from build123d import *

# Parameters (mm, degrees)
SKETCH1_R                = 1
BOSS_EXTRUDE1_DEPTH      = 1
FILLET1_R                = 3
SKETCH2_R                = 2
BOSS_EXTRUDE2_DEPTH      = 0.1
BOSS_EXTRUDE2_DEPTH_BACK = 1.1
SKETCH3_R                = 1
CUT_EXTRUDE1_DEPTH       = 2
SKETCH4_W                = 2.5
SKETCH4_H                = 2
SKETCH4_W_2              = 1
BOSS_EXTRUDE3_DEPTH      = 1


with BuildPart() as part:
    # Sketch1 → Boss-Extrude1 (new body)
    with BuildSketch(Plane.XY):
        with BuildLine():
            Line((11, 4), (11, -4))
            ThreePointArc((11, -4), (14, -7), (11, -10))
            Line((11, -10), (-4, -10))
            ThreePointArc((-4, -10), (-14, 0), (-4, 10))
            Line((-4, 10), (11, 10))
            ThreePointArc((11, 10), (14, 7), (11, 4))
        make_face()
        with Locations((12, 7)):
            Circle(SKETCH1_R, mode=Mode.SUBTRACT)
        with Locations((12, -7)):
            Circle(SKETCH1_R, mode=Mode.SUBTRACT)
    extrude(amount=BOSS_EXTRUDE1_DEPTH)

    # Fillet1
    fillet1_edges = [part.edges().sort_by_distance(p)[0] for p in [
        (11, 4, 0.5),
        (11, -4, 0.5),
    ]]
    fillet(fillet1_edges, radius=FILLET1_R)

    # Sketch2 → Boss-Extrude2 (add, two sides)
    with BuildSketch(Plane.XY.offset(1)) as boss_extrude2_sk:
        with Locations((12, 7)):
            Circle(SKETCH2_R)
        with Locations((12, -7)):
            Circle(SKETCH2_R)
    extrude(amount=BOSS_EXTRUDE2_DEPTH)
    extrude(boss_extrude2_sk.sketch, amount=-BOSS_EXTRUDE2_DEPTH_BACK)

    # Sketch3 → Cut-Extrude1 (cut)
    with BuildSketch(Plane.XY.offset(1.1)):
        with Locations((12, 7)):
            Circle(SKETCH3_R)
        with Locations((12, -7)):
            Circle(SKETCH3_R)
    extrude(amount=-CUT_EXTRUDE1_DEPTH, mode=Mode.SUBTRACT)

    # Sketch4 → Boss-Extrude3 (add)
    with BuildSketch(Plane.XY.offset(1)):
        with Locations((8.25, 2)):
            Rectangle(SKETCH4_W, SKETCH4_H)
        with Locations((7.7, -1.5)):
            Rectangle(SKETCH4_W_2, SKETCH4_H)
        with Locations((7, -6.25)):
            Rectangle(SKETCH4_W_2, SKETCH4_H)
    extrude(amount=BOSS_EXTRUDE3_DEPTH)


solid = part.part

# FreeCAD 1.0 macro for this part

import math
import FreeCAD as App
import Part
import Sketcher
from FreeCAD import Vector


def edges_at(feature, points):
    """Names of the edges that pass closest to the given points."""
    edges = feature.Shape.Edges
    near = lambda p: min(range(len(edges)), key=lambda i: edges[i].distToShape(Part.Vertex(*p))[0])
    return sorted({f"Edge{near(p) + 1}" for p in points})

doc = App.newDocument("Part")
body = doc.addObject("PartDesign::Body", "Body")

# Sketch on XY plane
sketch1 = body.newObject("Sketcher::SketchObject", "Sketch")
sketch1.AttachmentSupport = (doc.getObject("XY_Plane"), [""])
sketch1.MapMode = "FlatFace"
sketch1.addGeometry([
    Part.LineSegment(Vector(11, -4, 0), Vector(11, 4, 0)),  # 0
    Part.ArcOfCircle(Part.Circle(Vector(11, 7, 0), Vector(0, 0, 1), 3), math.radians(-90), math.radians(90)),  # 1
    Part.LineSegment(Vector(11, 10, 0), Vector(-4, 10, 0)),  # 2
    Part.ArcOfCircle(Part.Circle(Vector(-4, 0, 0), Vector(0, 0, 1), 10), math.radians(90), math.radians(270)),  # 3
    Part.LineSegment(Vector(-4, -10, 0), Vector(11, -10, 0)),  # 4
    Part.ArcOfCircle(Part.Circle(Vector(11, -7, 0), Vector(0, 0, 1), 3), math.radians(-90), math.radians(90)),  # 5
    Part.Circle(Vector(12, -7, 0), Vector(0, 0, 1), 1),  # 6
    Part.Circle(Vector(12, 7, 0), Vector(0, 0, 1), 1),  # 7
], False)
sketch1.addConstraint([
    Sketcher.Constraint("Coincident", 0, 2, 1, 1),
    Sketcher.Constraint("Tangent", 1, 2, 2, 1),
    Sketcher.Constraint("Tangent", 2, 2, 3, 1),
    Sketcher.Constraint("Tangent", 3, 2, 4, 1),
    Sketcher.Constraint("Tangent", 4, 2, 5, 1),
    Sketcher.Constraint("Coincident", 5, 2, 0, 1),
    Sketcher.Constraint("Vertical", 0),
    Sketcher.Constraint("Horizontal", 2),
    Sketcher.Constraint("Horizontal", 4),
    Sketcher.Constraint("Equal", 1, 5),
    Sketcher.Constraint("Equal", 6, 7),
    Sketcher.Constraint("Symmetric", 1, 3, 5, 3, -1),
    Sketcher.Constraint("Symmetric", 6, 3, 7, 3, -1),
    Sketcher.Constraint("Horizontal", 5, 3, 6, 3),
    Sketcher.Constraint("Vertical", 5, 3, 0, 2),
    Sketcher.Constraint("Diameter", 6, 2.0),
    Sketcher.Constraint("Radius", 1, 3.0),
    Sketcher.Constraint("Radius", 3, 10.0),
    Sketcher.Constraint("DistanceX", 2, 2, 2, 1, 15.0),
    Sketcher.Constraint("DistanceX", -1, 1, 1, 3, 11.0),
    Sketcher.Constraint("DistanceX", -1, 1, 6, 3, 12.0),
])
pad1 = body.newObject("PartDesign::Pad", "Pad")
pad1.Profile = sketch1
pad1.Length = 1
doc.recompute()

fillet = body.newObject("PartDesign::Fillet", "Fillet")
fillet.Base = (pad1, edges_at(pad1, [(11, 4, 0.5), (11, -4, 0.5)]))
fillet.Radius = 3

# Sketch on XY plane
sketch2 = body.newObject("Sketcher::SketchObject", "Sketch001")
sketch2.AttachmentSupport = (doc.getObject("XY_Plane"), [""])
sketch2.MapMode = "FlatFace"
sketch2.AttachmentOffset = App.Placement(Vector(0, 0, 1), App.Rotation())
sketch2.addGeometry([
    Part.Circle(Vector(12, 7, 0), Vector(0, 0, 1), 2),
    Part.Circle(Vector(12, -7, 0), Vector(0, 0, 1), 2),
], False)
sketch2.addConstraint([
    Sketcher.Constraint("Equal", 0, 1),
    Sketcher.Constraint("Symmetric", 0, 3, 1, 3, -1),
    Sketcher.Constraint("Diameter", 0, 4.0),
    Sketcher.Constraint("DistanceX", -1, 1, 0, 3, 12.0),
    Sketcher.Constraint("DistanceY", -1, 1, 0, 3, 7.0),
])
pad2 = body.newObject("PartDesign::Pad", "Pad001")
pad2.Profile = sketch2
pad2.Type = "TwoLengths"
pad2.Length = 0.1
pad2.Length2 = 1.1

# Sketch on XY plane
sketch3 = body.newObject("Sketcher::SketchObject", "Sketch002")
sketch3.AttachmentSupport = (doc.getObject("XY_Plane"), [""])
sketch3.MapMode = "FlatFace"
sketch3.AttachmentOffset = App.Placement(Vector(0, 0, 1.1), App.Rotation())
sketch3.addGeometry([
    Part.Circle(Vector(12, 7, 0), Vector(0, 0, 1), 1),
    Part.Circle(Vector(12, -7, 0), Vector(0, 0, 1), 1),
], False)
sketch3.addConstraint([
    Sketcher.Constraint("Equal", 0, 1),
    Sketcher.Constraint("Symmetric", 0, 3, 1, 3, -1),
    Sketcher.Constraint("Diameter", 0, 2.0),
    Sketcher.Constraint("DistanceX", -1, 1, 0, 3, 12.0),
    Sketcher.Constraint("DistanceY", -1, 1, 0, 3, 7.0),
])
pocket1 = body.newObject("PartDesign::Pocket", "Pocket")
pocket1.Profile = sketch3
pocket1.Length = 2

# Sketch on XY plane
sketch4 = body.newObject("Sketcher::SketchObject", "Sketch003")
sketch4.AttachmentSupport = (doc.getObject("XY_Plane"), [""])
sketch4.MapMode = "FlatFace"
sketch4.AttachmentOffset = App.Placement(Vector(0, 0, 1), App.Rotation())
sketch4.addGeometry([
    Part.LineSegment(Vector(7, 3, 0), Vector(7, 1, 0)),  # 0
    Part.LineSegment(Vector(7, 1, 0), Vector(9.5, 1, 0)),  # 1
    Part.LineSegment(Vector(9.5, 1, 0), Vector(9.5, 3, 0)),  # 2
    Part.LineSegment(Vector(9.5, 3, 0), Vector(7, 3, 0)),  # 3
    Part.LineSegment(Vector(7.2, -0.5, 0), Vector(7.2, -2.5, 0)),  # 4
    Part.LineSegment(Vector(7.2, -2.5, 0), Vector(8.2, -2.5, 0)),  # 5
    Part.LineSegment(Vector(8.2, -2.5, 0), Vector(8.2, -0.5, 0)),  # 6
    Part.LineSegment(Vector(8.2, -0.5, 0), Vector(7.2, -0.5, 0)),  # 7
    Part.LineSegment(Vector(6.5, -5.2, 0), Vector(6.5, -7.2, 0)),  # 8
    Part.LineSegment(Vector(6.5, -7.2, 0), Vector(7.5, -7.2, 0)),  # 9
    Part.LineSegment(Vector(7.5, -7.2, 0), Vector(7.5, -5.2, 0)),  # 10
    Part.LineSegment(Vector(7.5, -5.2, 0), Vector(6.5, -5.2, 0)),  # 11
], False)
sketch4.addConstraint([
    Sketcher.Constraint("Coincident", 0, 2, 1, 1),
    Sketcher.Constraint("Coincident", 1, 2, 2, 1),
    Sketcher.Constraint("Coincident", 2, 2, 3, 1),
    Sketcher.Constraint("Coincident", 3, 2, 0, 1),
    Sketcher.Constraint("Coincident", 4, 2, 5, 1),
    Sketcher.Constraint("Coincident", 5, 2, 6, 1),
    Sketcher.Constraint("Coincident", 6, 2, 7, 1),
    Sketcher.Constraint("Coincident", 7, 2, 4, 1),
    Sketcher.Constraint("Coincident", 8, 2, 9, 1),
    Sketcher.Constraint("Coincident", 9, 2, 10, 1),
    Sketcher.Constraint("Coincident", 10, 2, 11, 1),
    Sketcher.Constraint("Coincident", 11, 2, 8, 1),
    Sketcher.Constraint("Vertical", 0),
    Sketcher.Constraint("Horizontal", 1),
    Sketcher.Constraint("Vertical", 2),
    Sketcher.Constraint("Horizontal", 3),
    Sketcher.Constraint("Vertical", 4),
    Sketcher.Constraint("Horizontal", 5),
    Sketcher.Constraint("Vertical", 6),
    Sketcher.Constraint("Horizontal", 7),
    Sketcher.Constraint("Vertical", 8),
    Sketcher.Constraint("Horizontal", 9),
    Sketcher.Constraint("Vertical", 10),
    Sketcher.Constraint("Horizontal", 11),
    Sketcher.Constraint("Equal", 7, 9),
    Sketcher.Constraint("Equal", 2, 4),
    Sketcher.Constraint("Equal", 6, 8),
    Sketcher.Constraint("DistanceX", 5, 1, 5, 2, 1.0),
    Sketcher.Constraint("DistanceY", 0, 2, 0, 1, 2.0),
    Sketcher.Constraint("DistanceX", 1, 1, 1, 2, 2.5),
    Sketcher.Constraint("DistanceX", -1, 1, 0, 2, 7.0),
    Sketcher.Constraint("DistanceY", -1, 1, 0, 2, 1.0),
    Sketcher.Constraint("DistanceX", -1, 1, 4, 2, 7.2),
    Sketcher.Constraint("DistanceY", 4, 2, -1, 1, 2.5),
    Sketcher.Constraint("DistanceX", -1, 1, 8, 2, 6.5),
    Sketcher.Constraint("DistanceY", 8, 2, -1, 1, 7.25),
])
pad3 = body.newObject("PartDesign::Pad", "Pad002")
pad3.Profile = sketch4
pad3.Length = 1

doc.recompute()
